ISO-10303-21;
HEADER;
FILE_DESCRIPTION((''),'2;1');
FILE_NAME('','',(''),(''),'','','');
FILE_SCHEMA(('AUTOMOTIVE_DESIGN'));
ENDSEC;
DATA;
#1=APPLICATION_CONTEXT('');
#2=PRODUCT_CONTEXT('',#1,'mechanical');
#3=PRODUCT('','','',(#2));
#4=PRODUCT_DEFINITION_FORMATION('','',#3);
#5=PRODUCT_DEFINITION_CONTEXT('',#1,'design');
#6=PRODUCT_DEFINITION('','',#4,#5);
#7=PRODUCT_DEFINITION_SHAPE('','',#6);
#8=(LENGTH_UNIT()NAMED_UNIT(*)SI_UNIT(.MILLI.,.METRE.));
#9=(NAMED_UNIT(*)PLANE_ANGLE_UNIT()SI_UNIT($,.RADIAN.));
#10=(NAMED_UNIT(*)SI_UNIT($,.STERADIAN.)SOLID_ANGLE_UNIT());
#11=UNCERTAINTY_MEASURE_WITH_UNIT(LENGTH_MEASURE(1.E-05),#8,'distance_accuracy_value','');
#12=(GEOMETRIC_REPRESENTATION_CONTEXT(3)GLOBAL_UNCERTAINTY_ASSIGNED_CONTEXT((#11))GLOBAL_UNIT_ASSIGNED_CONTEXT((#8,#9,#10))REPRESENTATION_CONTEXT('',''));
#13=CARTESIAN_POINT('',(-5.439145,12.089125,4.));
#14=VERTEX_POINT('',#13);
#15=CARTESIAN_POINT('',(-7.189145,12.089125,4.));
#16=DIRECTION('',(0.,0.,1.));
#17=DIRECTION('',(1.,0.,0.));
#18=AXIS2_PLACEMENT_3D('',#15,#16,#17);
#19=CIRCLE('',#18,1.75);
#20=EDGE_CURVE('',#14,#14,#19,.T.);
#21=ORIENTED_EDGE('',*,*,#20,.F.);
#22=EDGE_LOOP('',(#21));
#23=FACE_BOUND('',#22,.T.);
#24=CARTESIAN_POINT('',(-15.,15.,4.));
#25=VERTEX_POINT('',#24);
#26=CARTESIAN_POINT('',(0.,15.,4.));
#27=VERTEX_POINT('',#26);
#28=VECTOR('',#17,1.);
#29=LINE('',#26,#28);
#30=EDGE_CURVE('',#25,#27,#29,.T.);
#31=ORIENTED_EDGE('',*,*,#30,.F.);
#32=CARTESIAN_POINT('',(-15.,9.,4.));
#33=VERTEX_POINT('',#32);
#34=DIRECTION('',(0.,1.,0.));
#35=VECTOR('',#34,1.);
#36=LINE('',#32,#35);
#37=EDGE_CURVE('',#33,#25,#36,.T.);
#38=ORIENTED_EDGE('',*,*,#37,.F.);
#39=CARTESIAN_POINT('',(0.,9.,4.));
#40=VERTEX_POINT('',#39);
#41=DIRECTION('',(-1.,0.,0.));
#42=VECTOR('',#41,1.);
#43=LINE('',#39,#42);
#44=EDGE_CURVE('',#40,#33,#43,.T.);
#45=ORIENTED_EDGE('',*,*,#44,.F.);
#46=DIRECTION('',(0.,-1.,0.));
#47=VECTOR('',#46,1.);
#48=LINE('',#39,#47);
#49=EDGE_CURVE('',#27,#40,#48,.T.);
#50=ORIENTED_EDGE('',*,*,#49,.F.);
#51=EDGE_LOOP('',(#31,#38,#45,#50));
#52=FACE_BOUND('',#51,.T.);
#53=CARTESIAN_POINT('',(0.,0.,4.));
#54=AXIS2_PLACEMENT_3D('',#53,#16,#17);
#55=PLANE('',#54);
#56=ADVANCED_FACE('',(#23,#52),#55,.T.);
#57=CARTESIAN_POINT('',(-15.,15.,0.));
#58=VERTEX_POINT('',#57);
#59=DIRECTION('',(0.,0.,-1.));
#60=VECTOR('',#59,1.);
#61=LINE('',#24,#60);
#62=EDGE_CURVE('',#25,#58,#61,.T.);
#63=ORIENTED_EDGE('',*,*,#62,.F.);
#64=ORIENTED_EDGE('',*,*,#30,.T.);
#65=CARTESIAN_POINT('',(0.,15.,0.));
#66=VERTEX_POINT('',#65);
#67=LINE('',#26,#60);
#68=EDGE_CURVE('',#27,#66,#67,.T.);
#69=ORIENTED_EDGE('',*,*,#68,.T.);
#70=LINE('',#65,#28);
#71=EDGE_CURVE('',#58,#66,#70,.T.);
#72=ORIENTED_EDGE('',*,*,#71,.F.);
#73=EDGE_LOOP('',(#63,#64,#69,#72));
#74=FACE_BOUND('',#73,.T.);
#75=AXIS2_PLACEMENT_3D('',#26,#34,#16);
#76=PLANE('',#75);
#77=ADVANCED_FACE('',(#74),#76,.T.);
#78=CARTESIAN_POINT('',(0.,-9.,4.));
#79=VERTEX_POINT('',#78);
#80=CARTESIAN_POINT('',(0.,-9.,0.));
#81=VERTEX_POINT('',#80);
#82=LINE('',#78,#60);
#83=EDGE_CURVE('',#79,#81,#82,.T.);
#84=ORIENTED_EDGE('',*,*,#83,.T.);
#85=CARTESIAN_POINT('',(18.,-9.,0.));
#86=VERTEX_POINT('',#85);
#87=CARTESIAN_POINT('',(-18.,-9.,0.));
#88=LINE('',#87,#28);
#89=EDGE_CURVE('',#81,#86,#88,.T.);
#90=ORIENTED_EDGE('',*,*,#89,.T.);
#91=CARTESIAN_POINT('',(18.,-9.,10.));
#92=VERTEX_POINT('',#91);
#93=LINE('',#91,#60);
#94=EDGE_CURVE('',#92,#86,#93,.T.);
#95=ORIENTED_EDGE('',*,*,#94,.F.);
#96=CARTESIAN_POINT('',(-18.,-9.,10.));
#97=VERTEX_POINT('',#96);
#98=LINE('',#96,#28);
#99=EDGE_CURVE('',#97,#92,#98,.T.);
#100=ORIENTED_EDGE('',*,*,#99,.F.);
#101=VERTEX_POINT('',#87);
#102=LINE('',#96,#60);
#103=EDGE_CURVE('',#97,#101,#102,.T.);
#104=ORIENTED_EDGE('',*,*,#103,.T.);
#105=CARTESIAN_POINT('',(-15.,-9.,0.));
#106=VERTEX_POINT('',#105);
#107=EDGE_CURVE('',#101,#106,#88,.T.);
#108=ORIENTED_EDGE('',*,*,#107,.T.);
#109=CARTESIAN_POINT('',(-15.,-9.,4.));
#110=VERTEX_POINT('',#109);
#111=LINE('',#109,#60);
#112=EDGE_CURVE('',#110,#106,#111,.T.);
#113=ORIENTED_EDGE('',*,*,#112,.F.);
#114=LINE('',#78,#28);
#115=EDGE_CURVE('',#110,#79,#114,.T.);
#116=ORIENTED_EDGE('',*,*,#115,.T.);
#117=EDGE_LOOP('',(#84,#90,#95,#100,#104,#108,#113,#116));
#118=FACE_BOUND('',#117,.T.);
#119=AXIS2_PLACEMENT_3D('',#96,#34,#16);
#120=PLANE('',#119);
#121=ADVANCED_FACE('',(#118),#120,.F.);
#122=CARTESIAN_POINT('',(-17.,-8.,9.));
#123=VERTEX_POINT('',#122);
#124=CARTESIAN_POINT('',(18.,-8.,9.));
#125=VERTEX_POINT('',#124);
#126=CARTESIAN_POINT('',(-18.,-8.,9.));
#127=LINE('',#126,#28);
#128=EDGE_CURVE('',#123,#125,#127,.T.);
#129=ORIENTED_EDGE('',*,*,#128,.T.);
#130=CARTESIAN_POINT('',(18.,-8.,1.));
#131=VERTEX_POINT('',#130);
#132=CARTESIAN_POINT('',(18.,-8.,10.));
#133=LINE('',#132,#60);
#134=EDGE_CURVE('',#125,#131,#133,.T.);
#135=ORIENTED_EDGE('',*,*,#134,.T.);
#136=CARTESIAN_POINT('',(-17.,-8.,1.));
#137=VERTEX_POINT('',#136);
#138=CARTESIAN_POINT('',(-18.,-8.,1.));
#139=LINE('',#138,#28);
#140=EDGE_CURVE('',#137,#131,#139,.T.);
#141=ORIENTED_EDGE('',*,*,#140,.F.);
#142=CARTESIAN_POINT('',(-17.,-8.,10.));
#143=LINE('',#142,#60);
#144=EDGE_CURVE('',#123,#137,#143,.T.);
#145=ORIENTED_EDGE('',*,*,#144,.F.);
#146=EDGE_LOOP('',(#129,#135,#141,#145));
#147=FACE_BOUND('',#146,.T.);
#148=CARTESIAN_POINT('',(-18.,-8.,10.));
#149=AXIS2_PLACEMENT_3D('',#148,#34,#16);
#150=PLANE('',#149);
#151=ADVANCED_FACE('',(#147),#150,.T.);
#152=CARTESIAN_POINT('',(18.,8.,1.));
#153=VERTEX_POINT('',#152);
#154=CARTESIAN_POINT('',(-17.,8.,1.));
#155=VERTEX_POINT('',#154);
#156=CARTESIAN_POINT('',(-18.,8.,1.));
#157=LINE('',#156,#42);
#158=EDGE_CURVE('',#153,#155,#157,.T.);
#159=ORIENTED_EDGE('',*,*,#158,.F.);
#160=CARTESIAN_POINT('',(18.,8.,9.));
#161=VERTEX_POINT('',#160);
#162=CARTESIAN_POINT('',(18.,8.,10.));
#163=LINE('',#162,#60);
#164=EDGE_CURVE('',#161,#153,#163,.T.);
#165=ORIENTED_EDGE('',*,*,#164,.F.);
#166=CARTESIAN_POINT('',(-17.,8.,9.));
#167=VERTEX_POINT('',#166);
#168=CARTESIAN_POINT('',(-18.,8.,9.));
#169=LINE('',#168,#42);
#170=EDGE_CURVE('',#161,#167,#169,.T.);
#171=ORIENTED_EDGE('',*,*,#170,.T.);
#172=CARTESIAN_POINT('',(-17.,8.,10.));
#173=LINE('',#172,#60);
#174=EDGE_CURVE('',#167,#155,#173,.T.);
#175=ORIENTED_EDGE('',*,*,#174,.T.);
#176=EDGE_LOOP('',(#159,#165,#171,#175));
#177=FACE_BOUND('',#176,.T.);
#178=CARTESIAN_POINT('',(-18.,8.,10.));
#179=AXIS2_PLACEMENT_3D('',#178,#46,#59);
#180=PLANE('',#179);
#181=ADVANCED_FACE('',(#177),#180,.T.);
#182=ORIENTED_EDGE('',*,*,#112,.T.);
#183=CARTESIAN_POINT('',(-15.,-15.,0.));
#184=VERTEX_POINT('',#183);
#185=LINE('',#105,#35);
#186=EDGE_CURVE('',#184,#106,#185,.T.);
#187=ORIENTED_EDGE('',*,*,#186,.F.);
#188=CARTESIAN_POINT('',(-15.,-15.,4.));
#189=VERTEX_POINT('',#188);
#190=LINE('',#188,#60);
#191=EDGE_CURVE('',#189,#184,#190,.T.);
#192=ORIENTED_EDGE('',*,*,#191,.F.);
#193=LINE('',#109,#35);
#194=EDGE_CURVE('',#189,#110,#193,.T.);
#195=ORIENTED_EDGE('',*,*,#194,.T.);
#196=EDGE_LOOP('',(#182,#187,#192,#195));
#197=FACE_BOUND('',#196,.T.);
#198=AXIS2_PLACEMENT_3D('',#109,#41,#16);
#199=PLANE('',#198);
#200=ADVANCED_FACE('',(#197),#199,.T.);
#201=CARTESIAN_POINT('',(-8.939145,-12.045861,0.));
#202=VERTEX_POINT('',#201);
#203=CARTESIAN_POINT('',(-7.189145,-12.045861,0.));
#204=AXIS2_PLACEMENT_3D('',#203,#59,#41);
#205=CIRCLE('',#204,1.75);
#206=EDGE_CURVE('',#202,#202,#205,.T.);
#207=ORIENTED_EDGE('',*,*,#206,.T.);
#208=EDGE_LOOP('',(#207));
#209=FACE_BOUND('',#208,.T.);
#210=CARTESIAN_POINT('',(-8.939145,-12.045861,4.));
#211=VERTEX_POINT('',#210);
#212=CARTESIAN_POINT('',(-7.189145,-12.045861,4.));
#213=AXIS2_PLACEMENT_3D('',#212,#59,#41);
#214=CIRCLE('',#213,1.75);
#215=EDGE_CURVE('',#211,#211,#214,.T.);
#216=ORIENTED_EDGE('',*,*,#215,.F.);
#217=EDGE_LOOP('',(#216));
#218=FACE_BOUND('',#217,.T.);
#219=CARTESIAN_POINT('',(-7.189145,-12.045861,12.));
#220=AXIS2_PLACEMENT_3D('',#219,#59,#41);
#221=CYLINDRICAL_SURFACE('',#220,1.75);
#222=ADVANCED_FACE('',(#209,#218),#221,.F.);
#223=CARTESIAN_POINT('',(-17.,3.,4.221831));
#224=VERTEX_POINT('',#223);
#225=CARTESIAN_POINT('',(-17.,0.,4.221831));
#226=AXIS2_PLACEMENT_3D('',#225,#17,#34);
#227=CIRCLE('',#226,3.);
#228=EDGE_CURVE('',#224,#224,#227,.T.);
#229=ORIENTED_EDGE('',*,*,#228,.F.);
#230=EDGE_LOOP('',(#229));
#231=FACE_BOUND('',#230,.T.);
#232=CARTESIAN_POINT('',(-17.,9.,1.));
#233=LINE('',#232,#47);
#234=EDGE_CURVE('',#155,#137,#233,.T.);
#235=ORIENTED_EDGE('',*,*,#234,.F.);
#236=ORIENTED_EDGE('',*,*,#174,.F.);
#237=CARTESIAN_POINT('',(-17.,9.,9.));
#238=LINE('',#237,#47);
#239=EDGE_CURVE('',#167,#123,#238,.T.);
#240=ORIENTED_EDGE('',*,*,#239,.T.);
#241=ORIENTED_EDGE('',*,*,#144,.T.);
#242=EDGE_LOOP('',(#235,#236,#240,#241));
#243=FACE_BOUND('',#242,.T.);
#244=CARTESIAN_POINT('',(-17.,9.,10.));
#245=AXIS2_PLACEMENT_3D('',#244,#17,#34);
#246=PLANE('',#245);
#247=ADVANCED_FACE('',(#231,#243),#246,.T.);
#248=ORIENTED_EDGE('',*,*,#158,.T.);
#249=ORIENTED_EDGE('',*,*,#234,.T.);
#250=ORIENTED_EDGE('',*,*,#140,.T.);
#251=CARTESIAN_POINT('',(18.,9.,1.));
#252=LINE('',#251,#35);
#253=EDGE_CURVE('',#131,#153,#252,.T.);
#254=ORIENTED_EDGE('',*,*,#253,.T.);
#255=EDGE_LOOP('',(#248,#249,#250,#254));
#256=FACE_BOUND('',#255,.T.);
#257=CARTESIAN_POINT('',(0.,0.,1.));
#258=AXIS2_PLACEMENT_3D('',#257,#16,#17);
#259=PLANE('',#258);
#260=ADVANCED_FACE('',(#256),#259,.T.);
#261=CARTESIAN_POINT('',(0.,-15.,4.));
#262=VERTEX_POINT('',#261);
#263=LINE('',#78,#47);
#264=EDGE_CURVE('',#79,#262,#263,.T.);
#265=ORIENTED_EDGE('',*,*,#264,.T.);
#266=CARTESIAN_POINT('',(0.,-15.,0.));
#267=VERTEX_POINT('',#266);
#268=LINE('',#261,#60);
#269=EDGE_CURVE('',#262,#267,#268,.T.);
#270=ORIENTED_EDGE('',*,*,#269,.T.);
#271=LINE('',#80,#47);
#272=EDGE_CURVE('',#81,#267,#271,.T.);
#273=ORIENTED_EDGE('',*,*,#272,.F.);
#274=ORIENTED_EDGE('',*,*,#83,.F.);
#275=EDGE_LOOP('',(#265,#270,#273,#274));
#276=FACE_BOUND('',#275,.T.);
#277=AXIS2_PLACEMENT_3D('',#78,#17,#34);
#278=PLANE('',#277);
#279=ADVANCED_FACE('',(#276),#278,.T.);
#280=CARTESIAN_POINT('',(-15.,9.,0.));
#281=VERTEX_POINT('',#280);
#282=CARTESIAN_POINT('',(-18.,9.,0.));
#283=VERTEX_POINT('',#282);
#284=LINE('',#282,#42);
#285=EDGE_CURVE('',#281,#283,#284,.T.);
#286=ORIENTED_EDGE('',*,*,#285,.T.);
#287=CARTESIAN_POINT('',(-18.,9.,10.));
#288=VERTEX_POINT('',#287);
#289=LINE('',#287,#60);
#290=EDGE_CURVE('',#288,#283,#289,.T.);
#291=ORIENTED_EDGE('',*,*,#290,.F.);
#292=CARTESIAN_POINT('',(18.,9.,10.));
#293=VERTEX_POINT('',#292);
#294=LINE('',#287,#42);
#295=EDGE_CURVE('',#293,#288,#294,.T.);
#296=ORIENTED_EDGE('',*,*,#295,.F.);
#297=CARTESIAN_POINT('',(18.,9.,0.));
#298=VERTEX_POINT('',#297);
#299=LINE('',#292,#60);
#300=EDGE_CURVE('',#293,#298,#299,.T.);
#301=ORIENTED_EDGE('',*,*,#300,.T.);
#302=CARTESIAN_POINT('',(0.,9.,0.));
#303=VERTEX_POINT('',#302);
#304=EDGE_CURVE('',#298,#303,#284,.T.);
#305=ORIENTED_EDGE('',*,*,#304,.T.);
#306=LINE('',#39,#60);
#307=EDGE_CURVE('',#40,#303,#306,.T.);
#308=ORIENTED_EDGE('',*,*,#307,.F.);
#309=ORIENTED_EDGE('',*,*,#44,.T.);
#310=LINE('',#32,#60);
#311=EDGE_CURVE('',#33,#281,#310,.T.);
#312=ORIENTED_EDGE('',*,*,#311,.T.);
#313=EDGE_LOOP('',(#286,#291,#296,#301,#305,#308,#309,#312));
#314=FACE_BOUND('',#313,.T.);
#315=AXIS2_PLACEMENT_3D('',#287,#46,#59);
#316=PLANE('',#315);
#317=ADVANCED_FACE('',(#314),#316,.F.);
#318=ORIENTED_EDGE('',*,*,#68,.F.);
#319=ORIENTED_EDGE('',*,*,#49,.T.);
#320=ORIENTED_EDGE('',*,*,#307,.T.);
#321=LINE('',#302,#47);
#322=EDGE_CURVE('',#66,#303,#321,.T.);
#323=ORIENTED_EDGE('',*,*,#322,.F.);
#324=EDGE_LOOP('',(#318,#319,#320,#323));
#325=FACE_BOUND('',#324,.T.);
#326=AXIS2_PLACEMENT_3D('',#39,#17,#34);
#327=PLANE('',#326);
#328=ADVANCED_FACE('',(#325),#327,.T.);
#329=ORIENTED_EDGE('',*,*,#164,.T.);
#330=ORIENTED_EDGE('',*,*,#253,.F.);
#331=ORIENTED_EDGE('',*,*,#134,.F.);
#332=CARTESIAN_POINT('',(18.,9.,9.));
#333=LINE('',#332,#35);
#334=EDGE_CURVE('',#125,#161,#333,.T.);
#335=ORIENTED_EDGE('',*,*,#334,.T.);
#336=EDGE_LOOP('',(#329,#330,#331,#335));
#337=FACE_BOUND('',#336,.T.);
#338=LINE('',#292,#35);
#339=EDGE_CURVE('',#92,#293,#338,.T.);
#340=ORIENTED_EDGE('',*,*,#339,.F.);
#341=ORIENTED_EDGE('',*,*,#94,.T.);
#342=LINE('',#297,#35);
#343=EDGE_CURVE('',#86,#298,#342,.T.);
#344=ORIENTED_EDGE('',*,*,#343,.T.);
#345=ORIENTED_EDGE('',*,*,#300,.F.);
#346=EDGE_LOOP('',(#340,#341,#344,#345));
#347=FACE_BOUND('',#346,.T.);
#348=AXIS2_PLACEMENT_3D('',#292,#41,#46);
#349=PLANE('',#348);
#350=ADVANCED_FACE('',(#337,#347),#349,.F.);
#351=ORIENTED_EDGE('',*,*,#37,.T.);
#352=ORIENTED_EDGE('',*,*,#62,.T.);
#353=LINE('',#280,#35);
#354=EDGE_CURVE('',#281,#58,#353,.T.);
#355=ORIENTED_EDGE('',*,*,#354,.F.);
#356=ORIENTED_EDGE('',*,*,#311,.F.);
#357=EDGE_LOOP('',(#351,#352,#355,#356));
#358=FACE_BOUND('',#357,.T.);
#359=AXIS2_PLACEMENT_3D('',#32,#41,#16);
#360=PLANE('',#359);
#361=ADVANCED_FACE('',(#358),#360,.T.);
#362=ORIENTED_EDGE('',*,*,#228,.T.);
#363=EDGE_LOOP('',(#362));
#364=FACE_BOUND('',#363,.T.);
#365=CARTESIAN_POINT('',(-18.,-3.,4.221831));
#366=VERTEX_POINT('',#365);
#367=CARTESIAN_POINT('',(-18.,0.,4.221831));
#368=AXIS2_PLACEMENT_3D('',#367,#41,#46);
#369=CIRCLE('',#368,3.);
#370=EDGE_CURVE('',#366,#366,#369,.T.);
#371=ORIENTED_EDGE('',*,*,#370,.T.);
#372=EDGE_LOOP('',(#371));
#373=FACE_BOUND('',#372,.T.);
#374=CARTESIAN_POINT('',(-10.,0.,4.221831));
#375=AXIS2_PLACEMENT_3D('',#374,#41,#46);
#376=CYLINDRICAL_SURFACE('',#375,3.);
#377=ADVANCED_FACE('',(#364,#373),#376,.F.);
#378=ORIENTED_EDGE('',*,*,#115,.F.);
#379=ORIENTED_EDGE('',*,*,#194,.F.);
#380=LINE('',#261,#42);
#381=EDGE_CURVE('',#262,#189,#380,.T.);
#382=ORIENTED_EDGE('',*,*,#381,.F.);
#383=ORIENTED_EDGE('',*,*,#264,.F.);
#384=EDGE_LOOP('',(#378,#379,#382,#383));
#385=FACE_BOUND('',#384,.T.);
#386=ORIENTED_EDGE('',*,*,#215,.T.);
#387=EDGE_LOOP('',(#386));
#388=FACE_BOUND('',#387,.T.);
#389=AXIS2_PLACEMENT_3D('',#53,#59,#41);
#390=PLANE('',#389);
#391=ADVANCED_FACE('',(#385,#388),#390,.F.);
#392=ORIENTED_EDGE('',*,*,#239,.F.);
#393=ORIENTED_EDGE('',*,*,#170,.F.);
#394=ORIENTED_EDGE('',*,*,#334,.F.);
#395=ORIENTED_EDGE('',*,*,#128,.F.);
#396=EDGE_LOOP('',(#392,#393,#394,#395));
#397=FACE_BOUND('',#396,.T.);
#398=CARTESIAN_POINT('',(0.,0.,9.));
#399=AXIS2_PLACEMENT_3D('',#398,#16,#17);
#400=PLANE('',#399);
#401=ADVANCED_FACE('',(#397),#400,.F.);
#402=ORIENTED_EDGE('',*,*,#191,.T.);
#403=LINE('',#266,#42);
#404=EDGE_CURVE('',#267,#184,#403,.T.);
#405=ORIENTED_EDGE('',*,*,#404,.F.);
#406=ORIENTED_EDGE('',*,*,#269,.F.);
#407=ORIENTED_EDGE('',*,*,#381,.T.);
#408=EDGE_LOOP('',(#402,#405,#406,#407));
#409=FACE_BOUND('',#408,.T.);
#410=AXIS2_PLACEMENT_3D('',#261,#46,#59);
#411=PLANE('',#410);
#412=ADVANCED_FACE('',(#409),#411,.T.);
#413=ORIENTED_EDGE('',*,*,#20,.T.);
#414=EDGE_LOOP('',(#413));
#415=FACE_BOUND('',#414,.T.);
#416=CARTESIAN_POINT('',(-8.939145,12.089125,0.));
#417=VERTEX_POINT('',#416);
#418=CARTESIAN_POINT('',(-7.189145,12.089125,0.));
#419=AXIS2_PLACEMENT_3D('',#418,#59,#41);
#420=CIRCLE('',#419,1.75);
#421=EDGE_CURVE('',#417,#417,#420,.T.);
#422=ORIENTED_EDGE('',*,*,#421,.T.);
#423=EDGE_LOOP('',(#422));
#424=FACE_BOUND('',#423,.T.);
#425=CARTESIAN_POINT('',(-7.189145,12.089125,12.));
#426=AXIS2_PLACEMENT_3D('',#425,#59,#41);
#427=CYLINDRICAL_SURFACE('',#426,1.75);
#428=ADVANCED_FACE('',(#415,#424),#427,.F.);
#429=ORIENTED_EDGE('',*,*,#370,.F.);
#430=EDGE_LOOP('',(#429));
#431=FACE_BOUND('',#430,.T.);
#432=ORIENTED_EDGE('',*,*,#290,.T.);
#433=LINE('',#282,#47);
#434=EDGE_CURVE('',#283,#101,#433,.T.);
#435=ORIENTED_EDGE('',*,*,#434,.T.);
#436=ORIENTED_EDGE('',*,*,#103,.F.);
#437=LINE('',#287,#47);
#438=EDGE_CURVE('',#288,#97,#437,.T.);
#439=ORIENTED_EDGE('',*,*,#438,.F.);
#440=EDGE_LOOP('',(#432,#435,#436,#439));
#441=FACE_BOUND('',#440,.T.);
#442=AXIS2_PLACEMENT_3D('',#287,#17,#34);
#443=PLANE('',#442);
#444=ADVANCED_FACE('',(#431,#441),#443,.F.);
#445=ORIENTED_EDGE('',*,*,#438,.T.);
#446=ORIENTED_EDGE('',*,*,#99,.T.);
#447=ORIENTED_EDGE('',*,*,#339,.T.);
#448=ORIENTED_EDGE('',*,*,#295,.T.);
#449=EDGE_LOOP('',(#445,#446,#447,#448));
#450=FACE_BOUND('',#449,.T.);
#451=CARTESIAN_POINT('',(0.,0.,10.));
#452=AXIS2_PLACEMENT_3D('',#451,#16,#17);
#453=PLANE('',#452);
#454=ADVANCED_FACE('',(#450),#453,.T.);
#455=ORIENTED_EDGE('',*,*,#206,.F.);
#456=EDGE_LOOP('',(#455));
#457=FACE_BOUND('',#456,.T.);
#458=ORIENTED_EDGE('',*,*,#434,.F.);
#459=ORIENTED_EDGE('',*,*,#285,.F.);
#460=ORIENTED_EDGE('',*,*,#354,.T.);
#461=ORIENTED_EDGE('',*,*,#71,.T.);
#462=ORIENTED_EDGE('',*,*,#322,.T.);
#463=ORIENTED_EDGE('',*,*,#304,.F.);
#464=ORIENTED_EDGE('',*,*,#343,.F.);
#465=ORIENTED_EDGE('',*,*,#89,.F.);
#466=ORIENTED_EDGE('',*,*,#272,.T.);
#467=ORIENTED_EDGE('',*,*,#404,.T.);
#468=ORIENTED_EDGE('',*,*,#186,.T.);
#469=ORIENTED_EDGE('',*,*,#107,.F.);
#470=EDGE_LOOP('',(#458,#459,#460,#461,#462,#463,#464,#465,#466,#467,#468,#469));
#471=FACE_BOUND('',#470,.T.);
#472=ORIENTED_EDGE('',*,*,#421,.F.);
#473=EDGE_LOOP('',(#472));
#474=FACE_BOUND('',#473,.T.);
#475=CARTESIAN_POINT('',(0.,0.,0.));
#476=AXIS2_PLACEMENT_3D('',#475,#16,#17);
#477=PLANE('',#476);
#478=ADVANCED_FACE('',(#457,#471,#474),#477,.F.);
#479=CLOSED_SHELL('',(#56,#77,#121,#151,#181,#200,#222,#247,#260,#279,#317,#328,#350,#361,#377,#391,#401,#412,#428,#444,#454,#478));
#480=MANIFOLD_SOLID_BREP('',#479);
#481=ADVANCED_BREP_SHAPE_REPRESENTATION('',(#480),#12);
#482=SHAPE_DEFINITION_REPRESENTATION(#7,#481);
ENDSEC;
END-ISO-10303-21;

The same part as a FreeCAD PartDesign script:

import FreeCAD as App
import Part
import Sketcher

V = App.Vector
Q = App.Units.Quantity


def faces_at(feature, points):
    """Names of the faces that lie closest to the given points."""
    faces = feature.Shape.Faces
    near = lambda p: min(range(len(faces)), key=lambda i: faces[i].distToShape(Part.Vertex(*p))[0])
    return sorted({f"Face{near(p) + 1}" for p in points})


def add_polygon(sketch, points):
    """Adds a closed chain of lines whose ends are joined by coincident constraints."""
    first, n = sketch.GeometryCount, len(points)
    for a, b in zip(points, points[1:] + points[:1]):
        sketch.addGeometry(Part.LineSegment(App.Vector(*a, 0), App.Vector(*b, 0)), False)
    for i in range(n):
        sketch.addConstraint(Sketcher.Constraint("Coincident", first + i, 2, first + (i + 1) % n, 1))

doc = App.newDocument("Part")
body = doc.addObject("PartDesign::Body", "Body")

# Sketch on XY plane
sketch1 = body.newObject("Sketcher::SketchObject", "Sketch")
sketch1.AttachmentSupport = (doc.getObject("XY_Plane"), [""])
sketch1.MapMode = "FlatFace"
add_polygon(sketch1, [(-18, 9), (-18, -9), (18, -9), (18, 9)])  # lines 0-3
sketch1.addConstraint(Sketcher.Constraint("Vertical", 0))
sketch1.addConstraint(Sketcher.Constraint("Horizontal", 1))
sketch1.addConstraint(Sketcher.Constraint("Vertical", 2))
sketch1.addConstraint(Sketcher.Constraint("Horizontal", 3))
sketch1.addConstraint(Sketcher.Constraint("Symmetric", 0, 2, 2, 2, -1, 1))
sketch1.addConstraint(Sketcher.Constraint("DistanceX", 1, 1, 1, 2, Q("36 mm")))
sketch1.addConstraint(Sketcher.Constraint("DistanceY", 0, 2, 0, 1, Q("18 mm")))
pad1 = body.newObject("PartDesign::Pad", "Pad")
pad1.Profile = sketch1
pad1.Length = 10
doc.recompute()

thickness = body.newObject("PartDesign::Thickness", "Thickness")
thickness.Base = (pad1, faces_at(pad1, [(18, 0, 5)]))
thickness.Value = 1
thickness.Reversed = True
thickness.Join = "Intersection"

# Sketch on YZ plane
sketch2 = body.newObject("Sketcher::SketchObject", "Sketch001")
sketch2.AttachmentSupport = (doc.getObject("YZ_Plane"), [""])
sketch2.MapMode = "FlatFace"
sketch2.AttachmentOffset = App.Placement(V(0, 0, -18), App.Rotation())
sketch2.addGeometry(Part.Circle(V(0, 4.2, 0), V(0, 0, 1), 3), False)
sketch2.addConstraint(Sketcher.Constraint("PointOnObject", 0, 3, -2))
sketch2.addConstraint(Sketcher.Constraint("Diameter", 0, Q("6 mm")))
sketch2.addConstraint(Sketcher.Constraint("DistanceY", -1, 1, 0, 3, Q("4.221831 mm")))
pocket1 = body.newObject("PartDesign::Pocket", "Pocket")
pocket1.Profile = sketch2
pocket1.Length = 8
pocket1.Reversed = True

# Sketch on XY plane
sketch3 = body.newObject("Sketcher::SketchObject", "Sketch002")
sketch3.AttachmentSupport = (doc.getObject("XY_Plane"), [""])
sketch3.MapMode = "FlatFace"
add_polygon(sketch3, [(0, 15), (0, 9), (-15, 9), (-15, 15)])  # lines 0-3
add_polygon(sketch3, [(0, -9), (0, -15), (-15, -15), (-15, -9)])  # lines 4-7
sketch3.addConstraint(Sketcher.Constraint("Vertical", 0))
sketch3.addConstraint(Sketcher.Constraint("Horizontal", 1))
sketch3.addConstraint(Sketcher.Constraint("Vertical", 2))
sketch3.addConstraint(Sketcher.Constraint("Horizontal", 3))
sketch3.addConstraint(Sketcher.Constraint("Vertical", 4))
sketch3.addConstraint(Sketcher.Constraint("Horizontal", 5))
sketch3.addConstraint(Sketcher.Constraint("Vertical", 6))
sketch3.addConstraint(Sketcher.Constraint("Horizontal", 7))
sketch3.addConstraint(Sketcher.Constraint("Symmetric", 3, 2, 4, 2, -1, 1))
sketch3.addConstraint(Sketcher.Constraint("Symmetric", 1, 2, 6, 2, -1))
sketch3.addConstraint(Sketcher.Constraint("PointOnObject", 0, 2, -2))
sketch3.addConstraint(Sketcher.Constraint("DistanceX", 1, 2, 1, 1, Q("15 mm")))
sketch3.addConstraint(Sketcher.Constraint("DistanceY", 0, 2, 0, 1, Q("6 mm")))
sketch3.addConstraint(Sketcher.Constraint("DistanceY", -1, 1, 0, 2, Q("9 mm")))
pad2 = body.newObject("PartDesign::Pad", "Pad001")
pad2.Profile = sketch3
pad2.Length = 4

# Sketch on XY plane
sketch4 = body.newObject("Sketcher::SketchObject", "Sketch003")
sketch4.AttachmentSupport = (doc.getObject("XY_Plane"), [""])
sketch4.MapMode = "FlatFace"
sketch4.addGeometry(Part.Circle(V(-7.2, 12.1, 0), V(0, 0, 1), 1.8), False)
sketch4.addGeometry(Part.Circle(V(-7.2, -12, 0), V(0, 0, 1), 1.8), False)
sketch4.addConstraint(Sketcher.Constraint("Equal", 0, 1))
sketch4.addConstraint(Sketcher.Constraint("Vertical", 0, 3, 1, 3))
sketch4.addConstraint(Sketcher.Constraint("Diameter", 0, Q("3.5 mm")))
sketch4.addConstraint(Sketcher.Constraint("DistanceY", 1, 3, -1, 1, Q("12.045861 mm")))
sketch4.addConstraint(Sketcher.Constraint("DistanceX", 0, 3, -1, 1, Q("7.189145 mm")))
sketch4.addConstraint(Sketcher.Constraint("DistanceY", -1, 1, 0, 3, Q("12.089125 mm")))
pocket2 = body.newObject("PartDesign::Pocket", "Pocket001")
pocket2.Profile = sketch4
pocket2.Length = 12
pocket2.Reversed = True

doc.recompute()
